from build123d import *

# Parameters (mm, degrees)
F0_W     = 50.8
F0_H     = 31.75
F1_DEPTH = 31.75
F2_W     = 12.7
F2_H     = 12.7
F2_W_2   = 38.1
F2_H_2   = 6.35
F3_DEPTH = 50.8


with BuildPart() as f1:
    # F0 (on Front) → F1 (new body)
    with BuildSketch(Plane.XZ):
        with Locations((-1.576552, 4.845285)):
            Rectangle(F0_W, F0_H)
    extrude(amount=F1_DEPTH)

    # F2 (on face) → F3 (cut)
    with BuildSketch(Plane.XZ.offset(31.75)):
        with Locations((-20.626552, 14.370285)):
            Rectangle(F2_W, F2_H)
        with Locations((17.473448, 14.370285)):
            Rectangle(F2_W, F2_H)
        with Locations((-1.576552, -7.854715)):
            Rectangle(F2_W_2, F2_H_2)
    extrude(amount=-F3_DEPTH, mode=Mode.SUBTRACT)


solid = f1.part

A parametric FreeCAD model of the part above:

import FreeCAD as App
import Part
import Sketcher

V = App.Vector
Q = App.Units.Quantity

doc = App.newDocument("Part")
body = doc.addObject("PartDesign::Body", "Body")

sketch1 = body.newObject("Sketcher::SketchObject", "Sketch")
sketch1.AttachmentSupport = (doc.getObject("XZ_Plane"), [""])
sketch1.MapMode = "FlatFace"
sketch1.addGeometry([
    Part.LineSegment(V(-26.976552, 20.720285, 0), V(-26.976552, -11.029715, 0)),
    Part.LineSegment(V(-26.976552, -11.029715, 0), V(23.823448, -11.029715, 0)),
    Part.LineSegment(V(23.823448, -11.029715, 0), V(23.823448, 20.720285, 0)),
    Part.LineSegment(V(23.823448, 20.720285, 0), V(-26.976552, 20.720285, 0)),
], False)
sketch1.addConstraint([
    Sketcher.Constraint("Coincident", 0, 2, 1, 1),
    Sketcher.Constraint("Coincident", 1, 2, 2, 1),
    Sketcher.Constraint("Coincident", 2, 2, 3, 1),
    Sketcher.Constraint("Coincident", 3, 2, 0, 1),
    Sketcher.Constraint("Vertical", 0),
    Sketcher.Constraint("Horizontal", 1),
    Sketcher.Constraint("Vertical", 2),
    Sketcher.Constraint("Horizontal", 3),
    Sketcher.Constraint("DistanceX", 1, 1, 1, 2, Q("2 in")),
    Sketcher.Constraint("DistanceY", 0, 2, 0, 1, Q("1.25 in")),
    Sketcher.Constraint("DistanceX", 0, 2, -1, 1, Q("26.976552 mm")),
    Sketcher.Constraint("DistanceY", 0, 2, -1, 1, Q("11.029715 mm")),
])
pad1 = body.newObject("PartDesign::Pad", "Pad")
pad1.Profile = sketch1
pad1.Length = Q("1.25 in")

sketch2 = body.newObject("Sketcher::SketchObject", "Sketch001")
sketch2.AttachmentSupport = (doc.getObject("XZ_Plane"), [""])
sketch2.MapMode = "FlatFace"
sketch2.AttachmentOffset = App.Placement(V(0, 0, 1.25 * 25.4), App.Rotation())
sketch2.addGeometry([
    Part.LineSegment(V(-26.976552, 20.720285, 0), V(-26.976552, 8.020285, 0)),
    Part.LineSegment(V(-26.976552, 8.020285, 0), V(-14.276552, 8.020285, 0)),
    Part.LineSegment(V(-14.276552, 8.020285, 0), V(-14.276552, 20.720285, 0)),
    Part.LineSegment(V(-14.276552, 20.720285, 0), V(-26.976552, 20.720285, 0)),
    Part.LineSegment(V(11.123448, 20.720285, 0), V(11.123448, 8.020285, 0)),
    Part.LineSegment(V(11.123448, 8.020285, 0), V(23.823448, 8.020285, 0)),
    Part.LineSegment(V(23.823448, 8.020285, 0), V(23.823448, 20.720285, 0)),
    Part.LineSegment(V(23.823448, 20.720285, 0), V(11.123448, 20.720285, 0)),
    Part.LineSegment(V(-20.626552, -4.679715, 0), V(-20.626552, -11.029715, 0)),
    Part.LineSegment(V(-20.626552, -11.029715, 0), V(17.473448, -11.029715, 0)),
    Part.LineSegment(V(17.473448, -11.029715, 0), V(17.473448, -4.679715, 0)),
    Part.LineSegment(V(17.473448, -4.679715, 0), V(-20.626552, -4.679715, 0)),
], False)
sketch2.addConstraint([
    Sketcher.Constraint("Coincident", 0, 2, 1, 1),
    Sketcher.Constraint("Coincident", 1, 2, 2, 1),
    Sketcher.Constraint("Coincident", 2, 2, 3, 1),
    Sketcher.Constraint("Coincident", 3, 2, 0, 1),
    Sketcher.Constraint("Coincident", 4, 2, 5, 1),
    Sketcher.Constraint("Coincident", 5, 2, 6, 1),
    Sketcher.Constraint("Coincident", 6, 2, 7, 1),
    Sketcher.Constraint("Coincident", 7, 2, 4, 1),
    Sketcher.Constraint("Coincident", 8, 2, 9, 1),
    Sketcher.Constraint("Coincident", 9, 2, 10, 1),
    Sketcher.Constraint("Coincident", 10, 2, 11, 1),
    Sketcher.Constraint("Coincident", 11, 2, 8, 1),
    Sketcher.Constraint("Vertical", 0),
    Sketcher.Constraint("Horizontal", 1),
    Sketcher.Constraint("Vertical", 2),
    Sketcher.Constraint("Horizontal", 3),
    Sketcher.Constraint("Vertical", 4),
    Sketcher.Constraint("Horizontal", 5),
    Sketcher.Constraint("Vertical", 6),
    Sketcher.Constraint("Horizontal", 7),
    Sketcher.Constraint("Vertical", 8),
    Sketcher.Constraint("Horizontal", 9),
    Sketcher.Constraint("Vertical", 10),
    Sketcher.Constraint("Horizontal", 11),
    Sketcher.Constraint("Horizontal", 1, 2, 4, 2),
    Sketcher.Constraint("Horizontal", 3, 2, 6, 2),
    Sketcher.Constraint("Equal", 3, 5),
    Sketcher.Constraint("Equal", 7, 0),
    Sketcher.Constraint("DistanceX", 1, 1, 1, 2, Q("0.5 in")),
    Sketcher.Constraint("DistanceX", 9, 1, 9, 2, Q("1.5 in")),
    Sketcher.Constraint("DistanceX", 1, 2, 4, 2, Q("1 in")),
    Sketcher.Constraint("DistanceY", 10, 2, 6, 2, Q("1 in")),
    Sketcher.Constraint("DistanceY", 8, 2, 8, 1, Q("0.25 in")),
    Sketcher.Constraint("DistanceX", 0, 2, 8, 2, Q("0.25 in")),
    Sketcher.Constraint("DistanceX", 8, 2, -1, 1, Q("20.626552 mm")),
    Sketcher.Constraint("DistanceY", -1, 1, 0, 2, Q("8.020285 mm")),
])
pocket1 = body.newObject("PartDesign::Pocket", "Pocket")
pocket1.Profile = sketch2
pocket1.Length = Q("2 in")

doc.recompute()
